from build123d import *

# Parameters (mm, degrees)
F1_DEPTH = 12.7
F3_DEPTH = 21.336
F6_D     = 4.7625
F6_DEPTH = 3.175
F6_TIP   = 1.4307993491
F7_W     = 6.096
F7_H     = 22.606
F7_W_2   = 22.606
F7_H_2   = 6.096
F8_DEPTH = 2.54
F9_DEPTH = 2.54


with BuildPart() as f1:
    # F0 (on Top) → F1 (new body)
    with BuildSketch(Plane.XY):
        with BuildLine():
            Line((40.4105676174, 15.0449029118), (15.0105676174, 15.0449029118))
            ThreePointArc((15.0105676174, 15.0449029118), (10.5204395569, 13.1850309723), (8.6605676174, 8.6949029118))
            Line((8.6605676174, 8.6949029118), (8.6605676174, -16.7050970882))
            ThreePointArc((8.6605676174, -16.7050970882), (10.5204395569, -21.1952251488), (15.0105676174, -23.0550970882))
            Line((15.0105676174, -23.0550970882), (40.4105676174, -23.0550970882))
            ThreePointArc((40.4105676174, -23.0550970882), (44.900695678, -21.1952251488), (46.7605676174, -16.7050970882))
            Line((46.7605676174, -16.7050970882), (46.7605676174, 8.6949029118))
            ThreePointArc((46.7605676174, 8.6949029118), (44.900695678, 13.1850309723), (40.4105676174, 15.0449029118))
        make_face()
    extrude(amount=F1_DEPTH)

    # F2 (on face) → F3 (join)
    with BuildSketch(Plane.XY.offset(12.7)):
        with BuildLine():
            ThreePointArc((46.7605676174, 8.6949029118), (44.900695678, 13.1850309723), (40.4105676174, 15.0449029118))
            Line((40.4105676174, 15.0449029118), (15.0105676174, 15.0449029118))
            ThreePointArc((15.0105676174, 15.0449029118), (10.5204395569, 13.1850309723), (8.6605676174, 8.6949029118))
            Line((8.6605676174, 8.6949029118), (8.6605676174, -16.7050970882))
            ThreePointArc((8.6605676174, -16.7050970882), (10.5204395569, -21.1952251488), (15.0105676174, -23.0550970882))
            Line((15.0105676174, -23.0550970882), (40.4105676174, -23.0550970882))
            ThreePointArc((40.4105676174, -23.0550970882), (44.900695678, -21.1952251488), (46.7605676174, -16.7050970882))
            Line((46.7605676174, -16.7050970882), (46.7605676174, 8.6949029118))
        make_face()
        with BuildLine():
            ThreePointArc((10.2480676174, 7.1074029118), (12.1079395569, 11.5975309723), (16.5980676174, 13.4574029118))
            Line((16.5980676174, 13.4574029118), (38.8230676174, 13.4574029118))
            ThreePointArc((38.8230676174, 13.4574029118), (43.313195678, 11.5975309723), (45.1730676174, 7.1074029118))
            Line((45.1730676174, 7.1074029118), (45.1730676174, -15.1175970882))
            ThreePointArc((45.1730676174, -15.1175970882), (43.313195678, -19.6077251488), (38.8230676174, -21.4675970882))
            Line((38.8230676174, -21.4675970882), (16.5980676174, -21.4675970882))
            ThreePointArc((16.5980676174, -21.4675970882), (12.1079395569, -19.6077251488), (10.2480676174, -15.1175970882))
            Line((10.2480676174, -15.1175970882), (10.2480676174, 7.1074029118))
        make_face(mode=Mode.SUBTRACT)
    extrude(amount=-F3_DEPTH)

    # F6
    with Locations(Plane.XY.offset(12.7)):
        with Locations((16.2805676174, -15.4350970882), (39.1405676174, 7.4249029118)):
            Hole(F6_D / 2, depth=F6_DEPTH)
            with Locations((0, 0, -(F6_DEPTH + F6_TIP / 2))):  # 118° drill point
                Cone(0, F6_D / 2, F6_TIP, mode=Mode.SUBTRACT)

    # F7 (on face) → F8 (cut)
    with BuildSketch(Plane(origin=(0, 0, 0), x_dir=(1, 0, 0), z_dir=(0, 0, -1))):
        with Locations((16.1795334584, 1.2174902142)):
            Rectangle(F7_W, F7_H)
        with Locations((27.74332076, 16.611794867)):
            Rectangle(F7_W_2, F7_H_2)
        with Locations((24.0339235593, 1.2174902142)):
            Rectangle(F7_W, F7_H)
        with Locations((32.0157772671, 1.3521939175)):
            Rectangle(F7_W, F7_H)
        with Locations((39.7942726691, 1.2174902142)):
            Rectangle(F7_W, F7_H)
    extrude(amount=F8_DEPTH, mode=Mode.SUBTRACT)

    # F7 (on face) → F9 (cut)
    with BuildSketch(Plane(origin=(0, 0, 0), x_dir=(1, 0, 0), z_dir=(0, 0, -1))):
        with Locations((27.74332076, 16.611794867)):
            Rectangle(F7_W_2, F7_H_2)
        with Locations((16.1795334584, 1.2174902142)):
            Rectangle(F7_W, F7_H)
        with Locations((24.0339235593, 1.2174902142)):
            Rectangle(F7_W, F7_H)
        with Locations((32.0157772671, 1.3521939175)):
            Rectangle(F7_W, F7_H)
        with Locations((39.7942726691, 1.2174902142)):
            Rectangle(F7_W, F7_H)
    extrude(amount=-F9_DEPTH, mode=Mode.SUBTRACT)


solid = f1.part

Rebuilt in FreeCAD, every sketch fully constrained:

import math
import FreeCAD as App
import Part
import Sketcher

V = App.Vector
Q = App.Units.Quantity


def add_polygon(sketch, points):
    """Adds a closed chain of lines whose ends are joined by coincident constraints."""
    first, n = sketch.GeometryCount, len(points)
    for a, b in zip(points, points[1:] + points[:1]):
        sketch.addGeometry(Part.LineSegment(App.Vector(*a, 0), App.Vector(*b, 0)), False)
    for i in range(n):
        sketch.addConstraint(Sketcher.Constraint("Coincident", first + i, 2, first + (i + 1) % n, 1))

doc = App.newDocument("Part")
body = doc.addObject("PartDesign::Body", "Body")

# Sketch on XY plane
sketch1 = body.newObject("Sketcher::SketchObject", "Sketch")
sketch1.AttachmentSupport = (doc.getObject("XY_Plane"), [""])
sketch1.MapMode = "FlatFace"
sketch1.addGeometry(Part.LineSegment(V(40, 15, 0), V(15, 15, 0)), False)
sketch1.addGeometry(Part.ArcOfCircle(Part.Circle(V(15, 9, 0), V(0, 0, 1), 6), math.radians(90), math.radians(180)), False)
sketch1.addGeometry(Part.LineSegment(V(9, 9, 0), V(9, -17, 0)), False)
sketch1.addGeometry(Part.ArcOfCircle(Part.Circle(V(15, -17, 0), V(0, 0, 1), 6), math.radians(180), math.radians(270)), False)
sketch1.addGeometry(Part.LineSegment(V(15, -23, 0), V(40, -23, 0)), False)
sketch1.addGeometry(Part.ArcOfCircle(Part.Circle(V(40, -17, 0), V(0, 0, 1), 6), math.radians(-90), math.radians(0)), False)
sketch1.addGeometry(Part.LineSegment(V(47, -17, 0), V(47, 9, 0)), False)
sketch1.addGeometry(Part.ArcOfCircle(Part.Circle(V(40, 9, 0), V(0, 0, 1), 6), math.radians(0), math.radians(90)), False)
sketch1.addConstraint(Sketcher.Constraint("Tangent", 0, 2, 1, 1))
sketch1.addConstraint(Sketcher.Constraint("Tangent", 1, 2, 2, 1))
sketch1.addConstraint(Sketcher.Constraint("Tangent", 2, 2, 3, 1))
sketch1.addConstraint(Sketcher.Constraint("Tangent", 3, 2, 4, 1))
sketch1.addConstraint(Sketcher.Constraint("Tangent", 4, 2, 5, 1))
sketch1.addConstraint(Sketcher.Constraint("Tangent", 5, 2, 6, 1))
sketch1.addConstraint(Sketcher.Constraint("Tangent", 6, 2, 7, 1))
sketch1.addConstraint(Sketcher.Constraint("Tangent", 7, 2, 0, 1))
sketch1.addConstraint(Sketcher.Constraint("Horizontal", 0))
sketch1.addConstraint(Sketcher.Constraint("Vertical", 2))
sketch1.addConstraint(Sketcher.Constraint("Horizontal", 4))
sketch1.addConstraint(Sketcher.Constraint("Vertical", 6))
sketch1.addConstraint(Sketcher.Constraint("Equal", 1, 3))
sketch1.addConstraint(Sketcher.Constraint("Equal", 3, 5))
sketch1.addConstraint(Sketcher.Constraint("Equal", 5, 7))
sketch1.addConstraint(Sketcher.Constraint("Equal", 4, 2))
sketch1.addConstraint(Sketcher.Constraint("DistanceX", 0, 2, 0, 1, Q("1 in")))
sketch1.addConstraint(Sketcher.Constraint("Radius", 1, Q("0.25 in")))
sketch1.addConstraint(Sketcher.Constraint("DistanceX", -1, 1, 1, 3, Q("15.010568 mm")))
sketch1.addConstraint(Sketcher.Constraint("DistanceY", -1, 1, 1, 3, Q("8.694903 mm")))
pad1 = body.newObject("PartDesign::Pad", "Pad")
pad1.Profile = sketch1
pad1.Length = Q("0.5 in")

# Sketch on XY plane
sketch2 = body.newObject("Sketcher::SketchObject", "Sketch001")
sketch2.AttachmentSupport = (doc.getObject("XY_Plane"), [""])
sketch2.MapMode = "FlatFace"
sketch2.AttachmentOffset = App.Placement(V(0, 0, 0.5 * 25.4), App.Rotation())
sketch2.addGeometry(Part.ArcOfCircle(Part.Circle(V(40, 9, 0), V(0, 0, 1), 6), math.radians(0), math.radians(90)), False)
sketch2.addGeometry(Part.LineSegment(V(40, 15, 0), V(15, 15, 0)), False)
sketch2.addGeometry(Part.ArcOfCircle(Part.Circle(V(15, 9, 0), V(0, 0, 1), 6), math.radians(90), math.radians(180)), False)
sketch2.addGeometry(Part.LineSegment(V(9, 9, 0), V(9, -17, 0)), False)
sketch2.addGeometry(Part.ArcOfCircle(Part.Circle(V(15, -17, 0), V(0, 0, 1), 6), math.radians(180), math.radians(270)), False)
sketch2.addGeometry(Part.LineSegment(V(15, -23, 0), V(40, -23, 0)), False)
sketch2.addGeometry(Part.ArcOfCircle(Part.Circle(V(40, -17, 0), V(0, 0, 1), 6), math.radians(-90), math.radians(0)), False)
sketch2.addGeometry(Part.LineSegment(V(47, -17, 0), V(47, 9, 0)), False)
sketch2.addGeometry(Part.LineSegment(V(10, -15, 0), V(10, 7, 0)), False)
sketch2.addGeometry(Part.ArcOfCircle(Part.Circle(V(17, 7, 0), V(0, 0, 1), 6), math.radians(90), math.radians(180)), False)
sketch2.addGeometry(Part.LineSegment(V(17, 13, 0), V(39, 13, 0)), False)
sketch2.addGeometry(Part.ArcOfCircle(Part.Circle(V(39, 7, 0), V(0, 0, 1), 6), math.radians(0), math.radians(90)), False)
sketch2.addGeometry(Part.LineSegment(V(45, 7, 0), V(45, -15, 0)), False)
sketch2.addGeometry(Part.ArcOfCircle(Part.Circle(V(39, -15, 0), V(0, 0, 1), 6), math.radians(-90), math.radians(0)), False)
sketch2.addGeometry(Part.LineSegment(V(39, -21, 0), V(17, -21, 0)), False)
sketch2.addGeometry(Part.ArcOfCircle(Part.Circle(V(17, -15, 0), V(0, 0, 1), 6), math.radians(180), math.radians(270)), False)
sketch2.addConstraint(Sketcher.Constraint("Tangent", 0, 2, 1, 1))
sketch2.addConstraint(Sketcher.Constraint("Tangent", 1, 2, 2, 1))
sketch2.addConstraint(Sketcher.Constraint("Tangent", 2, 2, 3, 1))
sketch2.addConstraint(Sketcher.Constraint("Tangent", 3, 2, 4, 1))
sketch2.addConstraint(Sketcher.Constraint("Tangent", 4, 2, 5, 1))
sketch2.addConstraint(Sketcher.Constraint("Tangent", 5, 2, 6, 1))
sketch2.addConstraint(Sketcher.Constraint("Tangent", 6, 2, 7, 1))
sketch2.addConstraint(Sketcher.Constraint("Tangent", 7, 2, 0, 1))
sketch2.addConstraint(Sketcher.Constraint("Tangent", 8, 2, 9, 2))
sketch2.addConstraint(Sketcher.Constraint("Tangent", 9, 1, 10, 1))
sketch2.addConstraint(Sketcher.Constraint("Tangent", 10, 2, 11, 2))
sketch2.addConstraint(Sketcher.Constraint("Tangent", 11, 1, 12, 1))
sketch2.addConstraint(Sketcher.Constraint("Tangent", 12, 2, 13, 2))
sketch2.addConstraint(Sketcher.Constraint("Tangent", 13, 1, 14, 1))
sketch2.addConstraint(Sketcher.Constraint("Tangent", 14, 2, 15, 2))
sketch2.addConstraint(Sketcher.Constraint("Tangent", 15, 1, 8, 1))
sketch2.addConstraint(Sketcher.Constraint("Horizontal", 1))
sketch2.addConstraint(Sketcher.Constraint("Vertical", 3))
sketch2.addConstraint(Sketcher.Constraint("Horizontal", 5))
sketch2.addConstraint(Sketcher.Constraint("Vertical", 7))
sketch2.addConstraint(Sketcher.Constraint("Vertical", 8))
sketch2.addConstraint(Sketcher.Constraint("Horizontal", 10))
sketch2.addConstraint(Sketcher.Constraint("Vertical", 12))
sketch2.addConstraint(Sketcher.Constraint("Horizontal", 14))
sketch2.addConstraint(Sketcher.Constraint("Equal", 0, 2))
sketch2.addConstraint(Sketcher.Constraint("Equal", 2, 4))
sketch2.addConstraint(Sketcher.Constraint("Equal", 4, 6))
sketch2.addConstraint(Sketcher.Constraint("Equal", 6, 9))
sketch2.addConstraint(Sketcher.Constraint("Equal", 9, 11))
sketch2.addConstraint(Sketcher.Constraint("Equal", 11, 13))
sketch2.addConstraint(Sketcher.Constraint("Equal", 13, 15))
sketch2.addConstraint(Sketcher.Constraint("Equal", 5, 3))
sketch2.addConstraint(Sketcher.Constraint("Equal", 14, 8))
sketch2.addConstraint(Sketcher.Constraint("DistanceX", 1, 2, 1, 1, Q("1 in")))
sketch2.addConstraint(Sketcher.Constraint("Radius", 0, Q("0.25 in")))
sketch2.addConstraint(Sketcher.Constraint("DistanceX", 10, 1, 10, 2, Q("0.875 in")))
sketch2.addConstraint(Sketcher.Constraint("DistanceX", 2, 3, 9, 3, Q("0.0625 in")))
sketch2.addConstraint(Sketcher.Constraint("DistanceY", 9, 3, 2, 3, Q("0.0625 in")))
sketch2.addConstraint(Sketcher.Constraint("DistanceX", -1, 1, 0, 3, Q("40.410568 mm")))
sketch2.addConstraint(Sketcher.Constraint("DistanceY", -1, 1, 0, 3, Q("8.694903 mm")))
pad2 = body.newObject("PartDesign::Pad", "Pad001")
pad2.Profile = sketch2
pad2.Length = Q("0.84 in")
pad2.Reversed = True

# Sketch on XY plane
sketch3 = body.newObject("Sketcher::SketchObject", "Sketch002")
sketch3.AttachmentSupport = (doc.getObject("XY_Plane"), [""])
sketch3.MapMode = "FlatFace"
sketch3.AttachmentOffset = App.Placement(V(0, 0, 0.5 * 25.4), App.Rotation())
sketch3.addGeometry(Part.Circle(V(16.3, -15.4, 0), V(0, 0, 1), 2.4), False)
sketch3.addGeometry(Part.Circle(V(39.1, 7.4, 0), V(0, 0, 1), 2.4), False)
sketch3.addConstraint(Sketcher.Constraint("Equal", 0, 1))
sketch3.addConstraint(Sketcher.Constraint("Diameter", 0, Q("0.1875 in")))
sketch3.addConstraint(Sketcher.Constraint("DistanceX", 0, 3, 1, 3, Q("0.9 in")))
sketch3.addConstraint(Sketcher.Constraint("DistanceY", 0, 3, 1, 3, Q("0.9 in")))
sketch3.addConstraint(Sketcher.Constraint("DistanceX", -1, 1, 0, 3, Q("16.280568 mm")))
sketch3.addConstraint(Sketcher.Constraint("DistanceY", 0, 3, -1, 1, Q("15.435097 mm")))
doc.recompute()
hole = body.newObject("PartDesign::Hole", "Hole")
hole.Profile = sketch3
hole.ThreadType = "None"
hole.Diameter = Q("0.1875 in")
hole.DepthType = "Dimension"
hole.Depth = Q("0.125 in")
hole.DrillPoint = "Angled"
hole.DrillPointAngle = 118

# Sketch on XY plane
sketch4 = body.newObject("Sketcher::SketchObject", "Sketch003")
sketch4.AttachmentSupport = (doc.getObject("XY_Plane"), [""])
sketch4.MapMode = "FlatFace"
add_polygon(sketch4, [(13, -13), (13, 10), (19, 10), (19, -13)])  # lines 0-3
add_polygon(sketch4, [(16, -20), (16, -14), (39, -14), (39, -20)])  # lines 4-7
add_polygon(sketch4, [(21, -13), (21, 10), (27, 10), (27, -13)])  # lines 8-11
add_polygon(sketch4, [(29, -13), (29, 10), (35, 10), (35, -13)])  # lines 12-15
add_polygon(sketch4, [(37, -13), (37, 10), (43, 10), (43, -13)])  # lines 16-19
sketch4.addConstraint(Sketcher.Constraint("Vertical", 0))
sketch4.addConstraint(Sketcher.Constraint("Horizontal", 1))
sketch4.addConstraint(Sketcher.Constraint("Vertical", 2))
sketch4.addConstraint(Sketcher.Constraint("Horizontal", 3))
sketch4.addConstraint(Sketcher.Constraint("Vertical", 4))
sketch4.addConstraint(Sketcher.Constraint("Horizontal", 5))
sketch4.addConstraint(Sketcher.Constraint("Vertical", 6))
sketch4.addConstraint(Sketcher.Constraint("Horizontal", 7))
sketch4.addConstraint(Sketcher.Constraint("Vertical", 8))
sketch4.addConstraint(Sketcher.Constraint("Horizontal", 9))
sketch4.addConstraint(Sketcher.Constraint("Vertical", 10))
sketch4.addConstraint(Sketcher.Constraint("Horizontal", 11))
sketch4.addConstraint(Sketcher.Constraint("Vertical", 12))
sketch4.addConstraint(Sketcher.Constraint("Horizontal", 13))
sketch4.addConstraint(Sketcher.Constraint("Vertical", 14))
sketch4.addConstraint(Sketcher.Constraint("Horizontal", 15))
sketch4.addConstraint(Sketcher.Constraint("Vertical", 16))
sketch4.addConstraint(Sketcher.Constraint("Horizontal", 17))
sketch4.addConstraint(Sketcher.Constraint("Vertical", 18))
sketch4.addConstraint(Sketcher.Constraint("Horizontal", 19))
sketch4.addConstraint(Sketcher.Constraint("Horizontal", 1, 2, 8, 2))
sketch4.addConstraint(Sketcher.Constraint("Horizontal", 3, 2, 10, 2))
sketch4.addConstraint(Sketcher.Constraint("Horizontal", 9, 2, 16, 2))
sketch4.addConstraint(Sketcher.Constraint("Horizontal", 11, 2, 18, 2))
sketch4.addConstraint(Sketcher.Constraint("Equal", 3, 9))
sketch4.addConstraint(Sketcher.Constraint("Equal", 11, 13))
sketch4.addConstraint(Sketcher.Constraint("Equal", 15, 17))
sketch4.addConstraint(Sketcher.Constraint("Equal", 7, 0))
sketch4.addConstraint(Sketcher.Constraint("Equal", 19, 4))
sketch4.addConstraint(Sketcher.Constraint("Equal", 10, 12))
sketch4.addConstraint(Sketcher.Constraint("DistanceX", 1, 1, 1, 2, Q("0.24 in")))
sketch4.addConstraint(Sketcher.Constraint("DistanceX", 5, 1, 5, 2, Q("0.89 in")))
sketch4.addConstraint(Sketcher.Constraint("DistanceY", 5, 2, 14, 2, Q("0.908601 mm")))
sketch4.addConstraint(Sketcher.Constraint("DistanceY", -1, 1, 0, 2, Q("10.08551 mm")))
sketch4.addConstraint(Sketcher.Constraint("DistanceX", -1, 1, 4, 2, Q("16.440321 mm")))
sketch4.addConstraint(Sketcher.Constraint("DistanceX", 1, 2, 8, 2, Q("1.75839 mm")))
sketch4.addConstraint(Sketcher.Constraint("DistanceX", 9, 2, 16, 2, Q("9.664349 mm")))
sketch4.addConstraint(Sketcher.Constraint("DistanceX", 5, 2, 18, 2, Q("3.795952 mm")))
sketch4.addConstraint(Sketcher.Constraint("DistanceY", 4, 2, -1, 1, Q("13.563795 mm")))
sketch4.addConstraint(Sketcher.Constraint("DistanceX", -1, 1, 12, 2, Q("28.967777 mm")))
pocket1 = body.newObject("PartDesign::Pocket", "Pocket")
pocket1.Profile = sketch4
pocket1.Length = Q("0.1 in")

# Sketch on XY plane
sketch5 = body.newObject("Sketcher::SketchObject", "Sketch004")
sketch5.AttachmentSupport = (doc.getObject("XY_Plane"), [""])
sketch5.MapMode = "FlatFace"
add_polygon(sketch5, [(16, -20), (16, -14), (39, -14), (39, -20)])  # lines 0-3
add_polygon(sketch5, [(13, -13), (13, 10), (19, 10), (19, -13)])  # lines 4-7
add_polygon(sketch5, [(21, -13), (21, 10), (27, 10), (27, -13)])  # lines 8-11
add_polygon(sketch5, [(29, -13), (29, 10), (35, 10), (35, -13)])  # lines 12-15
add_polygon(sketch5, [(37, -13), (37, 10), (43, 10), (43, -13)])  # lines 16-19
sketch5.addConstraint(Sketcher.Constraint("Vertical", 0))
sketch5.addConstraint(Sketcher.Constraint("Horizontal", 1))
sketch5.addConstraint(Sketcher.Constraint("Vertical", 2))
sketch5.addConstraint(Sketcher.Constraint("Horizontal", 3))
sketch5.addConstraint(Sketcher.Constraint("Vertical", 4))
sketch5.addConstraint(Sketcher.Constraint("Horizontal", 5))
sketch5.addConstraint(Sketcher.Constraint("Vertical", 6))
sketch5.addConstraint(Sketcher.Constraint("Horizontal", 7))
sketch5.addConstraint(Sketcher.Constraint("Vertical", 8))
sketch5.addConstraint(Sketcher.Constraint("Horizontal", 9))
sketch5.addConstraint(Sketcher.Constraint("Vertical", 10))
sketch5.addConstraint(Sketcher.Constraint("Horizontal", 11))
sketch5.addConstraint(Sketcher.Constraint("Vertical", 12))
sketch5.addConstraint(Sketcher.Constraint("Horizontal", 13))
sketch5.addConstraint(Sketcher.Constraint("Vertical", 14))
sketch5.addConstraint(Sketcher.Constraint("Horizontal", 15))
sketch5.addConstraint(Sketcher.Constraint("Vertical", 16))
sketch5.addConstraint(Sketcher.Constraint("Horizontal", 17))
sketch5.addConstraint(Sketcher.Constraint("Vertical", 18))
sketch5.addConstraint(Sketcher.Constraint("Horizontal", 19))
sketch5.addConstraint(Sketcher.Constraint("Horizontal", 5, 2, 8, 2))
sketch5.addConstraint(Sketcher.Constraint("Horizontal", 7, 2, 10, 2))
sketch5.addConstraint(Sketcher.Constraint("Horizontal", 9, 2, 16, 2))
sketch5.addConstraint(Sketcher.Constraint("Horizontal", 11, 2, 18, 2))
sketch5.addConstraint(Sketcher.Constraint("Equal", 7, 9))
sketch5.addConstraint(Sketcher.Constraint("Equal", 11, 13))
sketch5.addConstraint(Sketcher.Constraint("Equal", 15, 17))
sketch5.addConstraint(Sketcher.Constraint("Equal", 19, 0))
sketch5.addConstraint(Sketcher.Constraint("Equal", 3, 4))
sketch5.addConstraint(Sketcher.Constraint("Equal", 10, 12))
sketch5.addConstraint(Sketcher.Constraint("DistanceX", 1, 1, 1, 2, Q("0.89 in")))
sketch5.addConstraint(Sketcher.Constraint("DistanceX", 5, 1, 5, 2, Q("0.24 in")))
sketch5.addConstraint(Sketcher.Constraint("DistanceY", 1, 2, 14, 2, Q("0.908601 mm")))
sketch5.addConstraint(Sketcher.Constraint("DistanceX", -1, 1, 0, 2, Q("16.440321 mm")))
sketch5.addConstraint(Sketcher.Constraint("DistanceY", -1, 1, 4, 2, Q("10.08551 mm")))
sketch5.addConstraint(Sketcher.Constraint("DistanceX", 5, 2, 8, 2, Q("1.75839 mm")))
sketch5.addConstraint(Sketcher.Constraint("DistanceX", 9, 2, 16, 2, Q("9.664349 mm")))
sketch5.addConstraint(Sketcher.Constraint("DistanceX", 1, 2, 18, 2, Q("3.795952 mm")))
sketch5.addConstraint(Sketcher.Constraint("DistanceY", 0, 2, -1, 1, Q("13.563795 mm")))
sketch5.addConstraint(Sketcher.Constraint("DistanceX", -1, 1, 12, 2, Q("28.967777 mm")))
pocket2 = body.newObject("PartDesign::Pocket", "Pocket001")
pocket2.Profile = sketch5
pocket2.Length = Q("0.1 in")
pocket2.Reversed = True

doc.recompute()
